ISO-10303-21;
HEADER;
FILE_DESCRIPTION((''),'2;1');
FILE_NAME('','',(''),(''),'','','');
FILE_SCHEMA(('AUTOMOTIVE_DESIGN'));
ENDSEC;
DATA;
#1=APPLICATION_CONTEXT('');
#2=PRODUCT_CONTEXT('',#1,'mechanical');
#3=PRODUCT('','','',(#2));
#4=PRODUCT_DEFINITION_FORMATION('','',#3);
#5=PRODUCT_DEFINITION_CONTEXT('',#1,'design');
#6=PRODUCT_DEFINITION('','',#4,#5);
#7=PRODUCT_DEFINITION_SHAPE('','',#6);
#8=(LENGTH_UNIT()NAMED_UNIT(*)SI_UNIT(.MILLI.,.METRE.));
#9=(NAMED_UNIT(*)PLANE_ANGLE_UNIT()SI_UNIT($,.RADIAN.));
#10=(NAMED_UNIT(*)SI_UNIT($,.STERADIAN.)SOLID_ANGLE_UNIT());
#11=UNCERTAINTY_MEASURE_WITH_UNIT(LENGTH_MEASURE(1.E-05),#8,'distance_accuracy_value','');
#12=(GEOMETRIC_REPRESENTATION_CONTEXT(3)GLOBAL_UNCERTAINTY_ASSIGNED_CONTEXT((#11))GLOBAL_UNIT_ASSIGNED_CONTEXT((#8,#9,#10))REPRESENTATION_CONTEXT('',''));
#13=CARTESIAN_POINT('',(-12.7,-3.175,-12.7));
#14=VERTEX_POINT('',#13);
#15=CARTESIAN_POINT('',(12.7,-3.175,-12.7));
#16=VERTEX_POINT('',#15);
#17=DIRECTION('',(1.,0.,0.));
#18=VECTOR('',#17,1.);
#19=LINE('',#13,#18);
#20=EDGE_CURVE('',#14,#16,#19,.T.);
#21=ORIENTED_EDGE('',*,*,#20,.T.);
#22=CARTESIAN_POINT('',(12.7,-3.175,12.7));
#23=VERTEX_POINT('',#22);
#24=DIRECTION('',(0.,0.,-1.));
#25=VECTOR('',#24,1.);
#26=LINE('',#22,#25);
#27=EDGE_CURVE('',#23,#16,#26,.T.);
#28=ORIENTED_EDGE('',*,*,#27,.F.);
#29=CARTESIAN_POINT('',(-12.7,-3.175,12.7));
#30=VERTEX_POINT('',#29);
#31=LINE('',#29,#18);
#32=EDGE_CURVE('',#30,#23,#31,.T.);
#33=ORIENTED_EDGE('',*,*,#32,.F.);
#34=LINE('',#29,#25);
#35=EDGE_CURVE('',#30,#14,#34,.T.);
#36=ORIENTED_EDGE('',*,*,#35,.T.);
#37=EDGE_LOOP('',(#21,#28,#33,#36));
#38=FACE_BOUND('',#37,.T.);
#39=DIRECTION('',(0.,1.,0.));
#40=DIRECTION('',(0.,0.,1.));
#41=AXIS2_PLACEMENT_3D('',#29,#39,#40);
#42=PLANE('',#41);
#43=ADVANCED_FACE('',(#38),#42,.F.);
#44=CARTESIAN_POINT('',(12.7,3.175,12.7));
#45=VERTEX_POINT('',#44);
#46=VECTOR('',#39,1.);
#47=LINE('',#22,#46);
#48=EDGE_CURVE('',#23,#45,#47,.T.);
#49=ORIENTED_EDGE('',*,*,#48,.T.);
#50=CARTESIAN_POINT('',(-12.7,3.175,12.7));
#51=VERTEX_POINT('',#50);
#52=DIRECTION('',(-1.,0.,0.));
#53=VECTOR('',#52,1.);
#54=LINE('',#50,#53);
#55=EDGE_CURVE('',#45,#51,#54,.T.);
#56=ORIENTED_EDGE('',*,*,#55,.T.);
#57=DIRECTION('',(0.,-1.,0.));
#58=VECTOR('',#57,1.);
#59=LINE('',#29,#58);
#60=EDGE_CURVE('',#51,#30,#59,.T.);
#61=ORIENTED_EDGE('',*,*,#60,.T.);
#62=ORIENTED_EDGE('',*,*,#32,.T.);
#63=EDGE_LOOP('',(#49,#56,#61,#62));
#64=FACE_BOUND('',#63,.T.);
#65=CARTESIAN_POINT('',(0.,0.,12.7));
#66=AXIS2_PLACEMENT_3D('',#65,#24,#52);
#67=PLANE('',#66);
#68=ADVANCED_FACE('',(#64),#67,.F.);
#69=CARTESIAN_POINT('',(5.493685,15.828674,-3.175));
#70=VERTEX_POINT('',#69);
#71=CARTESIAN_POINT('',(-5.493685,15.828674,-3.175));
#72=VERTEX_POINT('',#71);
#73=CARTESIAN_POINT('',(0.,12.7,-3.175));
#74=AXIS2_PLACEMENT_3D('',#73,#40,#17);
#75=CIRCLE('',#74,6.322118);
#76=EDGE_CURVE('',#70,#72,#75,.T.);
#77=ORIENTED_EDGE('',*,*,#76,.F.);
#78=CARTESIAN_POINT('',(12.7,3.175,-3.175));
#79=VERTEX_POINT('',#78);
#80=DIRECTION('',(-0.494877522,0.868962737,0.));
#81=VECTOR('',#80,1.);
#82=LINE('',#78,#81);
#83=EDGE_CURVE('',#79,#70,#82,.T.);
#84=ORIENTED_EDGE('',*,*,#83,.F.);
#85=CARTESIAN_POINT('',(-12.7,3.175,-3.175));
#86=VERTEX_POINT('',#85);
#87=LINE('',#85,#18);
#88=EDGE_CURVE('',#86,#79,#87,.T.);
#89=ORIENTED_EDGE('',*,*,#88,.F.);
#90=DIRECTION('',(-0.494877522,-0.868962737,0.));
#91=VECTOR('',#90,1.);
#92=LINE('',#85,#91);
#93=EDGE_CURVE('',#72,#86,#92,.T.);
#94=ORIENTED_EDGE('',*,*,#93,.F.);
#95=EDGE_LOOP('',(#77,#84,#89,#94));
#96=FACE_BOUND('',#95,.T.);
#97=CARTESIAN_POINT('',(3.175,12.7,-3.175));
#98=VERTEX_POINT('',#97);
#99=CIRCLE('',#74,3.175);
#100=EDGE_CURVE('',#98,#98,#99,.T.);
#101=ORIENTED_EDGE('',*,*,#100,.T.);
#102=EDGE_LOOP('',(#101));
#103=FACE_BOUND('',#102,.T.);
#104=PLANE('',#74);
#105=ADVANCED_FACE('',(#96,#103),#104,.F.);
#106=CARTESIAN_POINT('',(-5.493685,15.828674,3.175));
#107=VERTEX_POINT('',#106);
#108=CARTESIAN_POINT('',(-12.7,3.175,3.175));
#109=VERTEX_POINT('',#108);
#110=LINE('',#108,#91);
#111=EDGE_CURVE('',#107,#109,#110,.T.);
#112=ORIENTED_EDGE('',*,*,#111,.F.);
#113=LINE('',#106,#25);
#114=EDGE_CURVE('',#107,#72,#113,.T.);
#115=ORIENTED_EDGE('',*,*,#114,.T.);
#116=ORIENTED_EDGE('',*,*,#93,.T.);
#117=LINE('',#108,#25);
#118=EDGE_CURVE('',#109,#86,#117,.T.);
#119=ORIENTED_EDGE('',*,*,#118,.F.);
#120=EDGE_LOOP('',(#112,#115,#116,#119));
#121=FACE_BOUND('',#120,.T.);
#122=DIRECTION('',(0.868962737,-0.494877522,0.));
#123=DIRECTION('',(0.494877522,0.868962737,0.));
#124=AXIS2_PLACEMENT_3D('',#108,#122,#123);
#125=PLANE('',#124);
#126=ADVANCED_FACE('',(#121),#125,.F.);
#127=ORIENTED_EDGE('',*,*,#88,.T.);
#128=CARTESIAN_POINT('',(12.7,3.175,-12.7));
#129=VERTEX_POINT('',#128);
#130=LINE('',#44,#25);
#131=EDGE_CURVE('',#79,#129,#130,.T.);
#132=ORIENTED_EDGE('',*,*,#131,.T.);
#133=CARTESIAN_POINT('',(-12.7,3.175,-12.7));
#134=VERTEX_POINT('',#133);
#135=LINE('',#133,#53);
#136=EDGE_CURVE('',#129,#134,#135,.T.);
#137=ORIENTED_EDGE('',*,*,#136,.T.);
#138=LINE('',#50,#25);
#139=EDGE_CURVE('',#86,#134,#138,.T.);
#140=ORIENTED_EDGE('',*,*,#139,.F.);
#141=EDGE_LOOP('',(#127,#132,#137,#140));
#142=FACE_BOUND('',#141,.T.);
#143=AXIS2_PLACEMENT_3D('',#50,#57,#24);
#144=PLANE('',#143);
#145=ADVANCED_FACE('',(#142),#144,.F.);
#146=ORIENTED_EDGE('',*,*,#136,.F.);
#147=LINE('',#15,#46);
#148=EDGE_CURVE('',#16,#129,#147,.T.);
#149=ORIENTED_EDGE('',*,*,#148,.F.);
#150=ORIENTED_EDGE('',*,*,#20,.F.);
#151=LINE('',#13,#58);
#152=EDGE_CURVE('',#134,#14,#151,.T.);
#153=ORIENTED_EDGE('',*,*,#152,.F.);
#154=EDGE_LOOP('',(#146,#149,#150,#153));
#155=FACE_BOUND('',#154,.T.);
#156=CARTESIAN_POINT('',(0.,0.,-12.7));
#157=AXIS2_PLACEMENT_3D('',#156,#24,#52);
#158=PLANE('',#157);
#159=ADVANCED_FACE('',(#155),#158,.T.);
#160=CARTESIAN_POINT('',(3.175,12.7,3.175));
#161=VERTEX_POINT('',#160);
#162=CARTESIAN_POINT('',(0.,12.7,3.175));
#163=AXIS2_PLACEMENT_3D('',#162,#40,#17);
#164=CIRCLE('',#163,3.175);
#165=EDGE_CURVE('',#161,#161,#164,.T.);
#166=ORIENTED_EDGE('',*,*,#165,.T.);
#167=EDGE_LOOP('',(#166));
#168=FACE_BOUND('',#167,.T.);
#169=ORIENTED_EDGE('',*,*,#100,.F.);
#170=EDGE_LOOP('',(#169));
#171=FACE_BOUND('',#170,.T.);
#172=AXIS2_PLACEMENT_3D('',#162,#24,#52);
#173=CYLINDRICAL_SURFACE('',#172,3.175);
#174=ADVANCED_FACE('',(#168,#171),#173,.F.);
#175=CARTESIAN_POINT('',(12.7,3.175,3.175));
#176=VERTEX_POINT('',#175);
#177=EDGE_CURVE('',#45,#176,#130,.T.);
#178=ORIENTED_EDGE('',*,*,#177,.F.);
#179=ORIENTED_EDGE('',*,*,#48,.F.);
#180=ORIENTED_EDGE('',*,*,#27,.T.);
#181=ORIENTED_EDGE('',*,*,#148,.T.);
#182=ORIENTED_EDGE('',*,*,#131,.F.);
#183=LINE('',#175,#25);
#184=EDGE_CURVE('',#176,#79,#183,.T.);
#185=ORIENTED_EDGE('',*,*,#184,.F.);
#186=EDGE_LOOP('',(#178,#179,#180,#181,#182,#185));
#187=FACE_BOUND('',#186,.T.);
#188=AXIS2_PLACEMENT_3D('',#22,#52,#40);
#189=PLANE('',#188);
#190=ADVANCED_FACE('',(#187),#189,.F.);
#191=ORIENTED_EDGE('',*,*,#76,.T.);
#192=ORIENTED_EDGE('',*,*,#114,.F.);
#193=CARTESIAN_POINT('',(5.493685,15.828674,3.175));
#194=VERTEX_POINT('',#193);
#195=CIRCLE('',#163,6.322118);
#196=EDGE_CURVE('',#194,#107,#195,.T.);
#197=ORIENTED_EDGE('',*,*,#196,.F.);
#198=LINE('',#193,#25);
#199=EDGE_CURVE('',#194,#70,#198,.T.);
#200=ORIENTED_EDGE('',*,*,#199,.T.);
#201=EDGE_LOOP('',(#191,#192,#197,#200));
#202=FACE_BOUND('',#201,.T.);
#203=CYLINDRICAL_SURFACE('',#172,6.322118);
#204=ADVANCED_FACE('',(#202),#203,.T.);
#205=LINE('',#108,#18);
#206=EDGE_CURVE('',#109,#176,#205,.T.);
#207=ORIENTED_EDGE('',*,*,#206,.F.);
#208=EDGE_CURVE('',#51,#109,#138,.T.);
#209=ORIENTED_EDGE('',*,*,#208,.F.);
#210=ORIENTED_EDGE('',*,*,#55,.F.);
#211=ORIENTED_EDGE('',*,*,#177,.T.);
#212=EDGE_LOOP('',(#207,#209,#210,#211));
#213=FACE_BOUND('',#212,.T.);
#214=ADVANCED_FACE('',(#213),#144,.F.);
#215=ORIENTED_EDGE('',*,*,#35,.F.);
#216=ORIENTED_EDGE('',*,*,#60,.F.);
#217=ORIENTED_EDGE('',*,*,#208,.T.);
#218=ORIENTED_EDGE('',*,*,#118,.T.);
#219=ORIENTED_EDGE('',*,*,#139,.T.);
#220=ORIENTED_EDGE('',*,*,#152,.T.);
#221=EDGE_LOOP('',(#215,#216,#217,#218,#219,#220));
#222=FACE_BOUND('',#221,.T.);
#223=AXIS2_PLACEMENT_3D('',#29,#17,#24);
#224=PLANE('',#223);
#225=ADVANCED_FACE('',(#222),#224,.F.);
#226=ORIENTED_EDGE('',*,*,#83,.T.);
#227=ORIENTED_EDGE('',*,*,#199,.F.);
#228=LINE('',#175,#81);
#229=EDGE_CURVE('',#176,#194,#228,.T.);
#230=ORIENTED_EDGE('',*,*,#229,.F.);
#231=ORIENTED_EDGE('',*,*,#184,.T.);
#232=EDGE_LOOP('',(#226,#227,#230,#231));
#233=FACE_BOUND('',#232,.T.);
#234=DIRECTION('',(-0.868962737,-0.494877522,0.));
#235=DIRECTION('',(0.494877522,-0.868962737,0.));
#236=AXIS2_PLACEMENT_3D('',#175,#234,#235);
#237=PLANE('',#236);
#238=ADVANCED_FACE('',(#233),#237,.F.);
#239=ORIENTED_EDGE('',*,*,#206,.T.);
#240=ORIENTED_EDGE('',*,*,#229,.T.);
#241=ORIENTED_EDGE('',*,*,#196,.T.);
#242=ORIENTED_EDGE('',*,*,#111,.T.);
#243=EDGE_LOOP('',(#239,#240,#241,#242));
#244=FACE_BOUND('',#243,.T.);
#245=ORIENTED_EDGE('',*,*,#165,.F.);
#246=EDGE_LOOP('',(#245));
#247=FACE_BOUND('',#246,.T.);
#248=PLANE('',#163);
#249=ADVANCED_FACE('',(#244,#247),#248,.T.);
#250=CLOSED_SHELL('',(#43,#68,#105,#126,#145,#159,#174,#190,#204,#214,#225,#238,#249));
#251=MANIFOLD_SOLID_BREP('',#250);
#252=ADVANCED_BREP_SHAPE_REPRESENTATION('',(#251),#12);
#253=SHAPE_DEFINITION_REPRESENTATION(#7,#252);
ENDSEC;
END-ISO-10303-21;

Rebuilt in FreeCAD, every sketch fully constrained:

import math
import FreeCAD as App
import Part
import Sketcher
Q = App.Units.Quantity


def add_polygon(sketch, points):
    """Adds a closed chain of lines whose ends are joined by coincident constraints."""
    first, n = sketch.GeometryCount, len(points)
    for a, b in zip(points, points[1:] + points[:1]):
        sketch.addGeometry(Part.LineSegment(App.Vector(*a, 0), App.Vector(*b, 0)), False)
    for i in range(n):
        sketch.addConstraint(Sketcher.Constraint("Coincident", first + i, 2, first + (i + 1) % n, 1))

doc = App.newDocument("Part")
body = doc.addObject("PartDesign::Body", "Body")

# Sketch on XY plane
sketch1 = body.newObject("Sketcher::SketchObject", "Sketch")
sketch1.AttachmentSupport = (doc.getObject("XY_Plane"), [""])
sketch1.MapMode = "FlatFace"
add_polygon(sketch1, [(-13, 3), (-13, -3), (13, -3), (13, 3)])  # lines 0-3
sketch1.addConstraint(Sketcher.Constraint("Vertical", 0))
sketch1.addConstraint(Sketcher.Constraint("Horizontal", 1))
sketch1.addConstraint(Sketcher.Constraint("Vertical", 2))
sketch1.addConstraint(Sketcher.Constraint("Horizontal", 3))
sketch1.addConstraint(Sketcher.Constraint("Symmetric", 0, 2, 2, 2, -1, 1))
sketch1.addConstraint(Sketcher.Constraint("DistanceX", 1, 1, 1, 2, Q("1 in")))
sketch1.addConstraint(Sketcher.Constraint("DistanceY", 0, 2, 0, 1, Q("0.25 in")))
pad1 = body.newObject("PartDesign::Pad", "Pad")
pad1.Profile = sketch1
pad1.Length = Q("1 in")
pad1.Midplane = True

# Sketch on XY plane
sketch2 = body.newObject("Sketcher::SketchObject", "Sketch001")
sketch2.AttachmentSupport = (doc.getObject("XY_Plane"), [""])
sketch2.MapMode = "FlatFace"
sketch2.addGeometry(Part.LineSegment(App.Vector(-5.5, 15.8, 0), App.Vector(-12.7, 3.2, 0)), False)
sketch2.addGeometry(Part.LineSegment(App.Vector(-12.7, 3.2, 0), App.Vector(12.7, 3.2, 0)), False)
sketch2.addGeometry(Part.LineSegment(App.Vector(12.7, 3.2, 0), App.Vector(5.5, 15.8, 0)), False)
sketch2.addGeometry(Part.ArcOfCircle(Part.Circle(App.Vector(0, 12.7, 0), App.Vector(0, 0, 1), 6.3), math.radians(30), math.radians(150)), False)
sketch2.addGeometry(Part.Circle(App.Vector(0, 12.7, 0), App.Vector(0, 0, 1), 3.2), False)
sketch2.addConstraint(Sketcher.Constraint("Coincident", 0, 2, 1, 1))
sketch2.addConstraint(Sketcher.Constraint("Coincident", 1, 2, 2, 1))
sketch2.addConstraint(Sketcher.Constraint("Tangent", 2, 2, 3, 1))
sketch2.addConstraint(Sketcher.Constraint("Tangent", 3, 2, 0, 1))
sketch2.addConstraint(Sketcher.Constraint("Horizontal", 1))
sketch2.addConstraint(Sketcher.Constraint("Coincident", 4, 3, 3, 3))
sketch2.addConstraint(Sketcher.Constraint("Symmetric", 2, 2, 3, 2, -2))
sketch2.addConstraint(Sketcher.Constraint("Diameter", 4, Q("0.25 in")))
sketch2.addConstraint(Sketcher.Constraint("DistanceX", 1, 1, 1, 2, Q("1 in")))
sketch2.addConstraint(Sketcher.Constraint("DistanceY", -1, 1, 3, 3, Q("0.5 in")))
sketch2.addConstraint(Sketcher.Constraint("DistanceY", -1, 1, 0, 2, Q("0.125 in")))
sketch2.addConstraint(Sketcher.Constraint("Radius", 3, Q("6.322118 mm")))
pad2 = body.newObject("PartDesign::Pad", "Pad001")
pad2.Profile = sketch2
pad2.Length = Q("0.25 in")
pad2.Midplane = True

doc.recompute()
